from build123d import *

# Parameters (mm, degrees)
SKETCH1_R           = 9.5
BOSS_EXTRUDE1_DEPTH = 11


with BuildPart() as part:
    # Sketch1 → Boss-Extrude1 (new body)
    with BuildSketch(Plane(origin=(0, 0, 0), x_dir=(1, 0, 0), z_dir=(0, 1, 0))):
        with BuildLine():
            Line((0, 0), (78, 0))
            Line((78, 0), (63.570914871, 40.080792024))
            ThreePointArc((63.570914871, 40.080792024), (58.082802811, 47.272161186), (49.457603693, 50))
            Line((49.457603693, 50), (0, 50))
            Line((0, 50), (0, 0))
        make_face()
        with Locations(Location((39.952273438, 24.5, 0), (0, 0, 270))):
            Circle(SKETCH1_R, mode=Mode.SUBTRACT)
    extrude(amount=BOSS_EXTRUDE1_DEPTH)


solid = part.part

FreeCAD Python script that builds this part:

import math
import FreeCAD as App
import Part
import Sketcher

V = App.Vector
Q = App.Units.Quantity

doc = App.newDocument("Part")
body = doc.addObject("PartDesign::Body", "Body")

# Sketch on XZ plane
sketch1 = body.newObject("Sketcher::SketchObject", "Sketch")
sketch1.AttachmentSupport = (doc.getObject("XZ_Plane"), [""])
sketch1.MapMode = "FlatFace"
sketch1.addGeometry([
    Part.LineSegment(V(0, 0, 0), V(78, 0, 0)),  # 0
    Part.LineSegment(V(78, 0, 0), V(64, -40, 0)),  # 1
    Part.ArcOfCircle(Part.Circle(V(49, -35, 0), V(0, 0, 1), 15), math.radians(-90), math.radians(-20)),  # 2
    Part.LineSegment(V(49, -50, 0), V(0, -50, 0)),  # 3
    Part.LineSegment(V(0, -50, 0), V(0, 0, 0)),  # 4
    Part.Circle(V(40, -24, 0), V(0, 0, 1), 10),  # 5
], False)
sketch1.addConstraint([
    Sketcher.Constraint("Coincident", 0, 2, 1, 1),
    Sketcher.Constraint("Tangent", 1, 2, 2, 2),
    Sketcher.Constraint("Tangent", 2, 1, 3, 1),
    Sketcher.Constraint("Coincident", 3, 2, 4, 1),
    Sketcher.Constraint("Coincident", 4, 2, 0, 1),
    Sketcher.Constraint("Horizontal", 0),
    Sketcher.Constraint("Horizontal", 3),
    Sketcher.Constraint("Vertical", 4),
    Sketcher.Constraint("Coincident", 4, 2, -1, 1),
    Sketcher.Constraint("Diameter", 5, Q("19 mm")),
    Sketcher.Constraint("Radius", 2, Q("15 mm")),
    Sketcher.Constraint("DistanceX", 0, 1, 0, 2, Q("78 mm")),
    Sketcher.Constraint("DistanceY", 4, 1, 4, 2, Q("50 mm")),
    Sketcher.Constraint("DistanceY", 5, 3, -1, 1, Q("24.5 mm")),
    Sketcher.Constraint("DistanceX", 3, 2, 3, 1, Q("49.457604 mm")),
    Sketcher.Constraint("DistanceX", 5, 3, 2, 3, Q("9.50533 mm")),
])
pad1 = body.newObject("PartDesign::Pad", "Pad")
pad1.Profile = sketch1
pad1.Length = 11
pad1.Reversed = True

doc.recompute()
